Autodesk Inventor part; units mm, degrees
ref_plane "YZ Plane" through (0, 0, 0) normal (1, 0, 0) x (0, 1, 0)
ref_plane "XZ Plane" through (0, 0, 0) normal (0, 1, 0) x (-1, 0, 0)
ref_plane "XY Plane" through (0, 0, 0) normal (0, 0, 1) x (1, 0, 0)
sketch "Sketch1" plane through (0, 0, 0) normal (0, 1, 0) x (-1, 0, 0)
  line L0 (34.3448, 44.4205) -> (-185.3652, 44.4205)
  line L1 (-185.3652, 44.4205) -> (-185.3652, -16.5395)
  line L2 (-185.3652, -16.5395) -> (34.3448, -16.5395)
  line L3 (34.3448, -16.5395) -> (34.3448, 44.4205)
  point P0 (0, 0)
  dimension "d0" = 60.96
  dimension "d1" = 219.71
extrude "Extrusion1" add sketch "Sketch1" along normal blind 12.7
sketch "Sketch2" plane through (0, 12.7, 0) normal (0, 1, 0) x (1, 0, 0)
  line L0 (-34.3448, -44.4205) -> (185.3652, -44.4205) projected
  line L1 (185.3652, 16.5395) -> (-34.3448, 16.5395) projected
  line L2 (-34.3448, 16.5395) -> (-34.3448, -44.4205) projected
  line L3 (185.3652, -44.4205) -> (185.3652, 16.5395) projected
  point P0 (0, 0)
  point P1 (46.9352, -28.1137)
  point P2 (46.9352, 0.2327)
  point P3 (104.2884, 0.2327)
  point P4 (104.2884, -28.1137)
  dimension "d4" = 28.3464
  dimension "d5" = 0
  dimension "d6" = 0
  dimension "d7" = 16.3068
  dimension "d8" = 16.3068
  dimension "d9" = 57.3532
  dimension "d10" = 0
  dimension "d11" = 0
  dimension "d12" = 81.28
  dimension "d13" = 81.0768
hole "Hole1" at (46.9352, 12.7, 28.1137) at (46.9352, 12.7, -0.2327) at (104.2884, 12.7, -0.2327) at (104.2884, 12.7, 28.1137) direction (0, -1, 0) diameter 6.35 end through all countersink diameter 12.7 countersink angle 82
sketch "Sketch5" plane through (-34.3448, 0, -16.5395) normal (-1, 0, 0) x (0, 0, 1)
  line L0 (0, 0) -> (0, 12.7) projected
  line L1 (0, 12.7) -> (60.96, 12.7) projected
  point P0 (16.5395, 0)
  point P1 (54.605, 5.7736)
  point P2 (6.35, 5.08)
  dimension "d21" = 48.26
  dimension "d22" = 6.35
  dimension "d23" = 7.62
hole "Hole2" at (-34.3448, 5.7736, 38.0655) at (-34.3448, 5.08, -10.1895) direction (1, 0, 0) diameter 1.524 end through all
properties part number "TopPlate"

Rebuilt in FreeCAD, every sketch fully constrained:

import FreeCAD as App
import Part
import Sketcher
from FreeCAD import Vector
Q = App.Units.Quantity


def add_polygon(sketch, points):
    """Adds a closed chain of lines whose ends are joined by coincident constraints."""
    first, n = sketch.GeometryCount, len(points)
    for a, b in zip(points, points[1:] + points[:1]):
        sketch.addGeometry(Part.LineSegment(App.Vector(*a, 0), App.Vector(*b, 0)), False)
    for i in range(n):
        sketch.addConstraint(Sketcher.Constraint("Coincident", first + i, 2, first + (i + 1) % n, 1))

doc = App.newDocument("Part")
body = doc.addObject("PartDesign::Body", "Body")

# Sketch on XZ plane
sketch1 = body.newObject("Sketcher::SketchObject", "Sketch")
sketch1.AttachmentSupport = (doc.getObject("XZ_Plane"), [""])
sketch1.MapMode = "FlatFace"
add_polygon(sketch1, [(-34.3448, -16.5395), (-34.3448, 44.4205), (185.3652, 44.4205), (185.3652, -16.5395)])  # lines 0-3
sketch1.addConstraint([
    Sketcher.Constraint("Vertical", 0),
    Sketcher.Constraint("Horizontal", 1),
    Sketcher.Constraint("Vertical", 2),
    Sketcher.Constraint("Horizontal", 3),
    Sketcher.Constraint("DistanceY", 0, 1, 0, 2, Q("2.4 in")),
    Sketcher.Constraint("DistanceX", 1, 1, 1, 2, Q("8.65 in")),
    Sketcher.Constraint("DistanceX", 0, 2, -1, 1, 34.3448),
    Sketcher.Constraint("DistanceY", -1, 1, 0, 2, 44.4205),
])
pad1 = body.newObject("PartDesign::Pad", "Pad")
pad1.Profile = sketch1
pad1.Length = Q("0.5 in")
pad1.Reversed = True

# Sketch on XZ plane
sketch2 = body.newObject("Sketcher::SketchObject", "Sketch001")
sketch2.AttachmentSupport = (doc.getObject("XZ_Plane"), [""])
sketch2.MapMode = "FlatFace"
sketch2.AttachmentOffset = App.Placement(Vector(0, 0, -0.5 * 25.4), App.Rotation())
sketch2.addGeometry([
    Part.Circle(Vector(46.9352, 28.1137, 0), Vector(0, 0, 1), 3.175),
    Part.Circle(Vector(46.9352, -0.2327, 0), Vector(0, 0, 1), 3.175),
    Part.Circle(Vector(104.2884, -0.2327, 0), Vector(0, 0, 1), 3.175),
    Part.Circle(Vector(104.2884, 28.1137, 0), Vector(0, 0, 1), 3.175),
], False)
sketch2.addConstraint([
    Sketcher.Constraint("Equal", 0, 1),
    Sketcher.Constraint("Equal", 1, 2),
    Sketcher.Constraint("Equal", 2, 3),
    Sketcher.Constraint("Horizontal", 1, 3, 2, 3),
    Sketcher.Constraint("Horizontal", 0, 3, 3, 3),
    Sketcher.Constraint("Vertical", 0, 3, 1, 3),
    Sketcher.Constraint("Vertical", 2, 3, 3, 3),
    Sketcher.Constraint("Diameter", 0, Q("0.25 in")),
    Sketcher.Constraint("DistanceY", 1, 3, 0, 3, Q("1.116 in")),
    Sketcher.Constraint("DistanceX", 1, 3, 2, 3, Q("2.258 in")),
    Sketcher.Constraint("DistanceX", -1, 1, 0, 3, 46.9352),
    Sketcher.Constraint("DistanceY", -1, 1, 0, 3, 28.1137),
])
doc.recompute()
hole = body.newObject("PartDesign::Hole", "Hole")
hole.Profile = sketch2
hole.ThreadType = "None"
hole.Diameter = Q("0.25 in")
hole.DepthType = "ThroughAll"
hole.HoleCutType = "Countersink"
hole.HoleCutDiameter = Q("0.5 in")
hole.HoleCutCountersinkAngle = 82
hole.Reversed = True

# Sketch on YZ plane
sketch3 = body.newObject("Sketcher::SketchObject", "Sketch002")
sketch3.AttachmentSupport = (doc.getObject("YZ_Plane"), [""])
sketch3.MapMode = "FlatFace"
sketch3.AttachmentOffset = App.Placement(Vector(0, 0, -34.3448), App.Rotation())
sketch3.addGeometry([
    Part.Circle(Vector(5.7736, 38.0655, 0), Vector(0, 0, 1), 0.762),
    Part.Circle(Vector(5.08, -10.1895, 0), Vector(0, 0, 1), 0.762),
], False)
sketch3.addConstraint([
    Sketcher.Constraint("Equal", 0, 1),
    Sketcher.Constraint("Diameter", 0, Q("0.06 in")),
    Sketcher.Constraint("DistanceX", -1, 1, 1, 3, Q("0.2 in")),
    Sketcher.Constraint("DistanceX", -1, 1, 0, 3, Q("0.2273 in")),
    Sketcher.Constraint("DistanceY", 1, 3, 0, 3, Q("1.8998 in")),
    Sketcher.Constraint("DistanceY", -1, 1, 0, 3, 38.0655),
])
doc.recompute()
hole2 = body.newObject("PartDesign::Hole", "Hole001")
hole2.Profile = sketch3
hole2.ThreadType = "None"
hole2.Diameter = Q("0.06 in")
hole2.DepthType = "ThroughAll"
hole2.Reversed = True

doc.recompute()
